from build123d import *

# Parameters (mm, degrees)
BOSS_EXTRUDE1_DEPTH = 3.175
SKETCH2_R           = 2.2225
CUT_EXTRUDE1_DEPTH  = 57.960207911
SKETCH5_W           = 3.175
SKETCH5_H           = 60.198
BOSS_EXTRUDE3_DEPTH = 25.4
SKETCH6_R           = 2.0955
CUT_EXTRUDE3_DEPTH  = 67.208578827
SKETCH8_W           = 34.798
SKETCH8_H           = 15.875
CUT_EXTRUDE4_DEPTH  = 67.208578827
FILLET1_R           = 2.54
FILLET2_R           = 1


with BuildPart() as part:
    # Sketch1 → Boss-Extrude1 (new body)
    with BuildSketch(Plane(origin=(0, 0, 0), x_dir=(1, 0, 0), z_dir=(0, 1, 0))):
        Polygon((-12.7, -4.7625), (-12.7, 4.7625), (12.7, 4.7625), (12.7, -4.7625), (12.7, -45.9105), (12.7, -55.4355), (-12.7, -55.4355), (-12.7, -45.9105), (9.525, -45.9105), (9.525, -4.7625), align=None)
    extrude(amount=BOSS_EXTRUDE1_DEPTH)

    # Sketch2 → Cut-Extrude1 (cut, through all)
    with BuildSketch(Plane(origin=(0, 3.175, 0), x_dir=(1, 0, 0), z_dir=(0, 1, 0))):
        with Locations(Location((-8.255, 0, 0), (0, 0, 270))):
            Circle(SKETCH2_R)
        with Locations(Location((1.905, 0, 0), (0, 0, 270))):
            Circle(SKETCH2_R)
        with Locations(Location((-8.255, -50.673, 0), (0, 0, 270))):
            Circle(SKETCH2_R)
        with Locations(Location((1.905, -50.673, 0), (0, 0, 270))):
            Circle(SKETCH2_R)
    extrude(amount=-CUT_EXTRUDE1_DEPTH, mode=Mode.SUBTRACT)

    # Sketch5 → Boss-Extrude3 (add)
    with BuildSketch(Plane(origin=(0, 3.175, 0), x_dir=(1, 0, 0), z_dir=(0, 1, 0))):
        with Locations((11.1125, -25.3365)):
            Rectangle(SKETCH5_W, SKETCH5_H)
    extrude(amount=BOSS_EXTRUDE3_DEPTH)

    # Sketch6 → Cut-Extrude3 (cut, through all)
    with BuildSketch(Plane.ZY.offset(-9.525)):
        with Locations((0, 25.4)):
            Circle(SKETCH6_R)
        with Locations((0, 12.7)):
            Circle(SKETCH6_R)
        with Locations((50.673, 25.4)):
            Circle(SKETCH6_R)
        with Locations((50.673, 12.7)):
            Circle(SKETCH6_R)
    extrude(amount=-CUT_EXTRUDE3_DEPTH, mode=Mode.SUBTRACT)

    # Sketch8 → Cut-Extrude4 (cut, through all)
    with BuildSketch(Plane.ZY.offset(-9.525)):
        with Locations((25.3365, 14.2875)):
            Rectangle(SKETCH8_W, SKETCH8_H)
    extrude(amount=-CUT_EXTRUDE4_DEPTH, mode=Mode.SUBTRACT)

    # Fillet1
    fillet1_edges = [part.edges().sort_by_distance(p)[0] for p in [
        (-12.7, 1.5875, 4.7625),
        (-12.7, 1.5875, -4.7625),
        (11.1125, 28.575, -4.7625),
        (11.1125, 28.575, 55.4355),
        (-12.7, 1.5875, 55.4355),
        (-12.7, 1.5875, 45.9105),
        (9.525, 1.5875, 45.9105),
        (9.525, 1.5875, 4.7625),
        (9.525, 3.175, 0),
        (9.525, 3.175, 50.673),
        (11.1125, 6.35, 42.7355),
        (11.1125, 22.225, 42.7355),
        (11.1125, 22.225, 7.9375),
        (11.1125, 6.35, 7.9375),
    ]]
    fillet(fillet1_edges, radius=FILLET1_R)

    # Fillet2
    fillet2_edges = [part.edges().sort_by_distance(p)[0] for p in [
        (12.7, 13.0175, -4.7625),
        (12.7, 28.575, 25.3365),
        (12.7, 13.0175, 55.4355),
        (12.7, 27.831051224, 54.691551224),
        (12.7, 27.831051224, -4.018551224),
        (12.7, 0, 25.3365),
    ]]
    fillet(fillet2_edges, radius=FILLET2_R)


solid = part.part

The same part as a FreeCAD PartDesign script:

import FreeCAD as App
import Part
import Sketcher
from FreeCAD import Vector
Q = App.Units.Quantity


def edges_at(feature, points):
    """Names of the edges that pass closest to the given points."""
    edges = feature.Shape.Edges
    near = lambda p: min(range(len(edges)), key=lambda i: edges[i].distToShape(Part.Vertex(*p))[0])
    return sorted({f"Edge{near(p) + 1}" for p in points})

doc = App.newDocument("Part")
body = doc.addObject("PartDesign::Body", "Body")

sketch1 = doc.addObject("Sketcher::SketchObject", "Sketch")
body.addObject(sketch1)
sketch1.AttachmentSupport = (doc.XZ_Plane, [""])
sketch1.MapMode = "FlatFace"
sketch1.addGeometry([
    Part.LineSegment(Vector(-12.7, -4.7625, 0), Vector(-12.7, 4.7625, 0)),
    Part.LineSegment(Vector(-12.7, 4.7625, 0), Vector(9.525, 4.7625, 0)),
    Part.LineSegment(Vector(9.525, 4.7625, 0), Vector(9.525, 45.9105, 0)),
    Part.LineSegment(Vector(9.525, 45.9105, 0), Vector(-12.7, 45.9105, 0)),
    Part.LineSegment(Vector(-12.7, 45.9105, 0), Vector(-12.7, 55.4355, 0)),
    Part.LineSegment(Vector(-12.7, 55.4355, 0), Vector(12.7, 55.4355, 0)),
    Part.LineSegment(Vector(12.7, 55.4355, 0), Vector(12.7, -4.7625, 0)),
    Part.LineSegment(Vector(12.7, -4.7625, 0), Vector(-12.7, -4.7625, 0)),
], False)
sketch1.addConstraint([
    Sketcher.Constraint("Coincident", 0, 2, 1, 1),
    Sketcher.Constraint("Coincident", 1, 2, 2, 1),
    Sketcher.Constraint("Coincident", 2, 2, 3, 1),
    Sketcher.Constraint("Coincident", 3, 2, 4, 1),
    Sketcher.Constraint("Coincident", 4, 2, 5, 1),
    Sketcher.Constraint("Coincident", 5, 2, 6, 1),
    Sketcher.Constraint("Coincident", 6, 2, 7, 1),
    Sketcher.Constraint("Coincident", 7, 2, 0, 1),
    Sketcher.Constraint("Vertical", 0),
    Sketcher.Constraint("Horizontal", 1),
    Sketcher.Constraint("Vertical", 2),
    Sketcher.Constraint("Horizontal", 3),
    Sketcher.Constraint("Vertical", 4),
    Sketcher.Constraint("Horizontal", 5),
    Sketcher.Constraint("Vertical", 6),
    Sketcher.Constraint("Horizontal", 7),
    Sketcher.Constraint("Symmetric", 0, 2, 6, 2, -1, 1),
    Sketcher.Constraint("Vertical", 0, 2, 3, 2),
    Sketcher.Constraint("Equal", 0, 4),
    Sketcher.Constraint("DistanceX", 5, 1, 5, 2, Q("1 in")),
    Sketcher.Constraint("DistanceY", 2, 1, 2, 2, Q("1.62 in")),
    Sketcher.Constraint("DistanceY", 6, 2, 6, 1, Q("2.37 in")),
    Sketcher.Constraint("DistanceX", 1, 1, 1, 2, Q("0.875 in")),
])
pad1 = doc.addObject("PartDesign::Pad", "Pad")
body.addObject(pad1)
pad1.Profile = sketch1
pad1.Length = Q("0.125 in")
pad1.Reversed = True

sketch2 = doc.addObject("Sketcher::SketchObject", "Sketch001")
body.addObject(sketch2)
sketch2.AttachmentSupport = (doc.XZ_Plane, [""])
sketch2.MapMode = "FlatFace"
sketch2.AttachmentOffset = App.Placement(Vector(0, 0, -0.125 * 25.4), App.Rotation())
sketch2.addGeometry([
    Part.Circle(Vector(-8.255, 0, 0), Vector(0, 0, 1), 2.2225),
    Part.Circle(Vector(1.905, 0, 0), Vector(0, 0, 1), 2.2225),
    Part.Circle(Vector(-8.255, 50.673, 0), Vector(0, 0, 1), 2.2225),
    Part.Circle(Vector(1.905, 50.673, 0), Vector(0, 0, 1), 2.2225),
], False)
sketch2.addConstraint([
    Sketcher.Constraint("Equal", 0, 1),
    Sketcher.Constraint("Equal", 1, 2),
    Sketcher.Constraint("Equal", 2, 3),
    Sketcher.Constraint("PointOnObject", 0, 3, -1),
    Sketcher.Constraint("PointOnObject", 1, 3, -1),
    Sketcher.Constraint("Horizontal", 2, 3, 3, 3),
    Sketcher.Constraint("Vertical", 0, 3, 2, 3),
    Sketcher.Constraint("Vertical", 1, 3, 3, 3),
    Sketcher.Constraint("Diameter", 0, Q("0.175 in")),
    Sketcher.Constraint("DistanceX", 0, 3, 1, 3, Q("0.4 in")),
    Sketcher.Constraint("DistanceX", 0, 3, -1, 1, Q("0.325 in")),
    Sketcher.Constraint("DistanceY", -1, 1, 2, 3, Q("1.995 in")),
])
pocket1 = doc.addObject("PartDesign::Pocket", "Pocket")
body.addObject(pocket1)
pocket1.Profile = sketch2
pocket1.Type = "ThroughAll"
pocket1.Reversed = True

sketch3 = doc.addObject("Sketcher::SketchObject", "Sketch002")
body.addObject(sketch3)
sketch3.AttachmentSupport = (doc.XZ_Plane, [""])
sketch3.MapMode = "FlatFace"
sketch3.AttachmentOffset = App.Placement(Vector(0, 0, -0.125 * 25.4), App.Rotation())
sketch3.addGeometry([
    Part.LineSegment(Vector(9.525, -4.7625, 0), Vector(9.525, 55.4355, 0)),
    Part.LineSegment(Vector(9.525, 55.4355, 0), Vector(12.7, 55.4355, 0)),
    Part.LineSegment(Vector(12.7, 55.4355, 0), Vector(12.7, -4.7625, 0)),
    Part.LineSegment(Vector(12.7, -4.7625, 0), Vector(9.525, -4.7625, 0)),
], False)
sketch3.addConstraint([
    Sketcher.Constraint("Coincident", 0, 2, 1, 1),
    Sketcher.Constraint("Coincident", 1, 2, 2, 1),
    Sketcher.Constraint("Coincident", 2, 2, 3, 1),
    Sketcher.Constraint("Coincident", 3, 2, 0, 1),
    Sketcher.Constraint("Vertical", 0),
    Sketcher.Constraint("Horizontal", 1),
    Sketcher.Constraint("Vertical", 2),
    Sketcher.Constraint("Horizontal", 3),
    Sketcher.Constraint("DistanceY", 0, 1, 0, 2, Q("2.37 in")),
    Sketcher.Constraint("DistanceX", -1, 1, 1, 2, Q("0.5 in")),
    Sketcher.Constraint("DistanceX", 1, 1, 1, 2, Q("0.125 in")),
    Sketcher.Constraint("DistanceY", 2, 2, -1, 1, Q("0.1875 in")),
])
pad2 = doc.addObject("PartDesign::Pad", "Pad001")
body.addObject(pad2)
pad2.Profile = sketch3
pad2.Length = Q("1 in")
pad2.Reversed = True

sketch4 = doc.addObject("Sketcher::SketchObject", "Sketch003")
body.addObject(sketch4)
sketch4.AttachmentSupport = (doc.YZ_Plane, [""])
sketch4.MapMode = "FlatFace"
sketch4.AttachmentOffset = App.Placement(Vector(0, 0, 0.375 * 25.4), App.Rotation())
sketch4.addGeometry([
    Part.Circle(Vector(25.4, 0, 0), Vector(0, 0, 1), 2.0955),
    Part.Circle(Vector(12.7, 0, 0), Vector(0, 0, 1), 2.0955),
    Part.Circle(Vector(25.4, 50.673, 0), Vector(0, 0, 1), 2.0955),
    Part.Circle(Vector(12.7, 50.673, 0), Vector(0, 0, 1), 2.0955),
], False)
sketch4.addConstraint([
    Sketcher.Constraint("Equal", 0, 1),
    Sketcher.Constraint("Equal", 1, 2),
    Sketcher.Constraint("Equal", 2, 3),
    Sketcher.Constraint("PointOnObject", 0, 3, -1),
    Sketcher.Constraint("PointOnObject", 1, 3, -1),
    Sketcher.Constraint("Horizontal", 2, 3, 3, 3),
    Sketcher.Constraint("Vertical", 0, 3, 2, 3),
    Sketcher.Constraint("Vertical", 1, 3, 3, 3),
    Sketcher.Constraint("Diameter", 0, Q("0.165 in")),
    Sketcher.Constraint("DistanceX", -1, 1, 0, 3, Q("1 in")),
    Sketcher.Constraint("DistanceX", -1, 1, 1, 3, Q("0.5 in")),
    Sketcher.Constraint("DistanceY", -1, 1, 2, 3, Q("1.995 in")),
])
pocket2 = doc.addObject("PartDesign::Pocket", "Pocket001")
body.addObject(pocket2)
pocket2.Profile = sketch4
pocket2.Type = "ThroughAll"
pocket2.Reversed = True

sketch5 = doc.addObject("Sketcher::SketchObject", "Sketch004")
body.addObject(sketch5)
sketch5.AttachmentSupport = (doc.YZ_Plane, [""])
sketch5.MapMode = "FlatFace"
sketch5.AttachmentOffset = App.Placement(Vector(0, 0, 0.375 * 25.4), App.Rotation())
sketch5.addGeometry([
    Part.LineSegment(Vector(22.225, 7.9375, 0), Vector(6.35, 7.9375, 0)),
    Part.LineSegment(Vector(6.35, 7.9375, 0), Vector(6.35, 42.7355, 0)),
    Part.LineSegment(Vector(6.35, 42.7355, 0), Vector(22.225, 42.7355, 0)),
    Part.LineSegment(Vector(22.225, 42.7355, 0), Vector(22.225, 7.9375, 0)),
], False)
sketch5.addConstraint([
    Sketcher.Constraint("Coincident", 0, 2, 1, 1),
    Sketcher.Constraint("Coincident", 1, 2, 2, 1),
    Sketcher.Constraint("Coincident", 2, 2, 3, 1),
    Sketcher.Constraint("Coincident", 3, 2, 0, 1),
    Sketcher.Constraint("Horizontal", 0),
    Sketcher.Constraint("Vertical", 1),
    Sketcher.Constraint("Horizontal", 2),
    Sketcher.Constraint("Vertical", 3),
    Sketcher.Constraint("DistanceY", 1, 1, 1, 2, Q("1.37 in")),
    Sketcher.Constraint("DistanceX", 0, 2, 0, 1, Q("0.625 in")),
    Sketcher.Constraint("DistanceX", -1, 1, 0, 2, Q("0.25 in")),
    Sketcher.Constraint("DistanceY", -1, 1, 0, 2, Q("0.3125 in")),
])
pocket3 = doc.addObject("PartDesign::Pocket", "Pocket002")
body.addObject(pocket3)
pocket3.Profile = sketch5
pocket3.Type = "ThroughAll"
pocket3.Reversed = True
doc.recompute()

fillet = doc.addObject("PartDesign::Fillet", "Fillet")
body.addObject(fillet)
fillet.Base = (pocket3, edges_at(pocket3, [
    (-12.7, 1.587, 4.763),
    (-12.7, 1.587, -4.763),
    (11.113, 28.575, -4.763),
    (11.113, 28.575, 55.435),
    (-12.7, 1.587, 55.435),
    (-12.7, 1.587, 45.91),
    (9.525, 1.587, 45.91),
    (9.525, 1.587, 4.763),
    (9.525, 3.175, 0),
    (9.525, 3.175, 50.673),
    (11.113, 6.35, 42.736),
    (11.113, 22.225, 42.736),
    (11.113, 22.225, 7.938),
    (11.113, 6.35, 7.938),
]))
fillet.Radius = Q("0.1 in")
doc.recompute()

fillet2 = doc.addObject("PartDesign::Fillet", "Fillet001")
body.addObject(fillet2)
fillet2.Base = (fillet, edges_at(fillet, [
    (12.7, 13.018, -4.763),
    (12.7, 28.575, 25.337),
    (12.7, 13.018, 55.435),
    (12.7, 27.831, 54.692),
    (12.7, 27.831, -4.019),
    (12.7, 0, 25.337),
]))
fillet2.Radius = 1

doc.recompute()
